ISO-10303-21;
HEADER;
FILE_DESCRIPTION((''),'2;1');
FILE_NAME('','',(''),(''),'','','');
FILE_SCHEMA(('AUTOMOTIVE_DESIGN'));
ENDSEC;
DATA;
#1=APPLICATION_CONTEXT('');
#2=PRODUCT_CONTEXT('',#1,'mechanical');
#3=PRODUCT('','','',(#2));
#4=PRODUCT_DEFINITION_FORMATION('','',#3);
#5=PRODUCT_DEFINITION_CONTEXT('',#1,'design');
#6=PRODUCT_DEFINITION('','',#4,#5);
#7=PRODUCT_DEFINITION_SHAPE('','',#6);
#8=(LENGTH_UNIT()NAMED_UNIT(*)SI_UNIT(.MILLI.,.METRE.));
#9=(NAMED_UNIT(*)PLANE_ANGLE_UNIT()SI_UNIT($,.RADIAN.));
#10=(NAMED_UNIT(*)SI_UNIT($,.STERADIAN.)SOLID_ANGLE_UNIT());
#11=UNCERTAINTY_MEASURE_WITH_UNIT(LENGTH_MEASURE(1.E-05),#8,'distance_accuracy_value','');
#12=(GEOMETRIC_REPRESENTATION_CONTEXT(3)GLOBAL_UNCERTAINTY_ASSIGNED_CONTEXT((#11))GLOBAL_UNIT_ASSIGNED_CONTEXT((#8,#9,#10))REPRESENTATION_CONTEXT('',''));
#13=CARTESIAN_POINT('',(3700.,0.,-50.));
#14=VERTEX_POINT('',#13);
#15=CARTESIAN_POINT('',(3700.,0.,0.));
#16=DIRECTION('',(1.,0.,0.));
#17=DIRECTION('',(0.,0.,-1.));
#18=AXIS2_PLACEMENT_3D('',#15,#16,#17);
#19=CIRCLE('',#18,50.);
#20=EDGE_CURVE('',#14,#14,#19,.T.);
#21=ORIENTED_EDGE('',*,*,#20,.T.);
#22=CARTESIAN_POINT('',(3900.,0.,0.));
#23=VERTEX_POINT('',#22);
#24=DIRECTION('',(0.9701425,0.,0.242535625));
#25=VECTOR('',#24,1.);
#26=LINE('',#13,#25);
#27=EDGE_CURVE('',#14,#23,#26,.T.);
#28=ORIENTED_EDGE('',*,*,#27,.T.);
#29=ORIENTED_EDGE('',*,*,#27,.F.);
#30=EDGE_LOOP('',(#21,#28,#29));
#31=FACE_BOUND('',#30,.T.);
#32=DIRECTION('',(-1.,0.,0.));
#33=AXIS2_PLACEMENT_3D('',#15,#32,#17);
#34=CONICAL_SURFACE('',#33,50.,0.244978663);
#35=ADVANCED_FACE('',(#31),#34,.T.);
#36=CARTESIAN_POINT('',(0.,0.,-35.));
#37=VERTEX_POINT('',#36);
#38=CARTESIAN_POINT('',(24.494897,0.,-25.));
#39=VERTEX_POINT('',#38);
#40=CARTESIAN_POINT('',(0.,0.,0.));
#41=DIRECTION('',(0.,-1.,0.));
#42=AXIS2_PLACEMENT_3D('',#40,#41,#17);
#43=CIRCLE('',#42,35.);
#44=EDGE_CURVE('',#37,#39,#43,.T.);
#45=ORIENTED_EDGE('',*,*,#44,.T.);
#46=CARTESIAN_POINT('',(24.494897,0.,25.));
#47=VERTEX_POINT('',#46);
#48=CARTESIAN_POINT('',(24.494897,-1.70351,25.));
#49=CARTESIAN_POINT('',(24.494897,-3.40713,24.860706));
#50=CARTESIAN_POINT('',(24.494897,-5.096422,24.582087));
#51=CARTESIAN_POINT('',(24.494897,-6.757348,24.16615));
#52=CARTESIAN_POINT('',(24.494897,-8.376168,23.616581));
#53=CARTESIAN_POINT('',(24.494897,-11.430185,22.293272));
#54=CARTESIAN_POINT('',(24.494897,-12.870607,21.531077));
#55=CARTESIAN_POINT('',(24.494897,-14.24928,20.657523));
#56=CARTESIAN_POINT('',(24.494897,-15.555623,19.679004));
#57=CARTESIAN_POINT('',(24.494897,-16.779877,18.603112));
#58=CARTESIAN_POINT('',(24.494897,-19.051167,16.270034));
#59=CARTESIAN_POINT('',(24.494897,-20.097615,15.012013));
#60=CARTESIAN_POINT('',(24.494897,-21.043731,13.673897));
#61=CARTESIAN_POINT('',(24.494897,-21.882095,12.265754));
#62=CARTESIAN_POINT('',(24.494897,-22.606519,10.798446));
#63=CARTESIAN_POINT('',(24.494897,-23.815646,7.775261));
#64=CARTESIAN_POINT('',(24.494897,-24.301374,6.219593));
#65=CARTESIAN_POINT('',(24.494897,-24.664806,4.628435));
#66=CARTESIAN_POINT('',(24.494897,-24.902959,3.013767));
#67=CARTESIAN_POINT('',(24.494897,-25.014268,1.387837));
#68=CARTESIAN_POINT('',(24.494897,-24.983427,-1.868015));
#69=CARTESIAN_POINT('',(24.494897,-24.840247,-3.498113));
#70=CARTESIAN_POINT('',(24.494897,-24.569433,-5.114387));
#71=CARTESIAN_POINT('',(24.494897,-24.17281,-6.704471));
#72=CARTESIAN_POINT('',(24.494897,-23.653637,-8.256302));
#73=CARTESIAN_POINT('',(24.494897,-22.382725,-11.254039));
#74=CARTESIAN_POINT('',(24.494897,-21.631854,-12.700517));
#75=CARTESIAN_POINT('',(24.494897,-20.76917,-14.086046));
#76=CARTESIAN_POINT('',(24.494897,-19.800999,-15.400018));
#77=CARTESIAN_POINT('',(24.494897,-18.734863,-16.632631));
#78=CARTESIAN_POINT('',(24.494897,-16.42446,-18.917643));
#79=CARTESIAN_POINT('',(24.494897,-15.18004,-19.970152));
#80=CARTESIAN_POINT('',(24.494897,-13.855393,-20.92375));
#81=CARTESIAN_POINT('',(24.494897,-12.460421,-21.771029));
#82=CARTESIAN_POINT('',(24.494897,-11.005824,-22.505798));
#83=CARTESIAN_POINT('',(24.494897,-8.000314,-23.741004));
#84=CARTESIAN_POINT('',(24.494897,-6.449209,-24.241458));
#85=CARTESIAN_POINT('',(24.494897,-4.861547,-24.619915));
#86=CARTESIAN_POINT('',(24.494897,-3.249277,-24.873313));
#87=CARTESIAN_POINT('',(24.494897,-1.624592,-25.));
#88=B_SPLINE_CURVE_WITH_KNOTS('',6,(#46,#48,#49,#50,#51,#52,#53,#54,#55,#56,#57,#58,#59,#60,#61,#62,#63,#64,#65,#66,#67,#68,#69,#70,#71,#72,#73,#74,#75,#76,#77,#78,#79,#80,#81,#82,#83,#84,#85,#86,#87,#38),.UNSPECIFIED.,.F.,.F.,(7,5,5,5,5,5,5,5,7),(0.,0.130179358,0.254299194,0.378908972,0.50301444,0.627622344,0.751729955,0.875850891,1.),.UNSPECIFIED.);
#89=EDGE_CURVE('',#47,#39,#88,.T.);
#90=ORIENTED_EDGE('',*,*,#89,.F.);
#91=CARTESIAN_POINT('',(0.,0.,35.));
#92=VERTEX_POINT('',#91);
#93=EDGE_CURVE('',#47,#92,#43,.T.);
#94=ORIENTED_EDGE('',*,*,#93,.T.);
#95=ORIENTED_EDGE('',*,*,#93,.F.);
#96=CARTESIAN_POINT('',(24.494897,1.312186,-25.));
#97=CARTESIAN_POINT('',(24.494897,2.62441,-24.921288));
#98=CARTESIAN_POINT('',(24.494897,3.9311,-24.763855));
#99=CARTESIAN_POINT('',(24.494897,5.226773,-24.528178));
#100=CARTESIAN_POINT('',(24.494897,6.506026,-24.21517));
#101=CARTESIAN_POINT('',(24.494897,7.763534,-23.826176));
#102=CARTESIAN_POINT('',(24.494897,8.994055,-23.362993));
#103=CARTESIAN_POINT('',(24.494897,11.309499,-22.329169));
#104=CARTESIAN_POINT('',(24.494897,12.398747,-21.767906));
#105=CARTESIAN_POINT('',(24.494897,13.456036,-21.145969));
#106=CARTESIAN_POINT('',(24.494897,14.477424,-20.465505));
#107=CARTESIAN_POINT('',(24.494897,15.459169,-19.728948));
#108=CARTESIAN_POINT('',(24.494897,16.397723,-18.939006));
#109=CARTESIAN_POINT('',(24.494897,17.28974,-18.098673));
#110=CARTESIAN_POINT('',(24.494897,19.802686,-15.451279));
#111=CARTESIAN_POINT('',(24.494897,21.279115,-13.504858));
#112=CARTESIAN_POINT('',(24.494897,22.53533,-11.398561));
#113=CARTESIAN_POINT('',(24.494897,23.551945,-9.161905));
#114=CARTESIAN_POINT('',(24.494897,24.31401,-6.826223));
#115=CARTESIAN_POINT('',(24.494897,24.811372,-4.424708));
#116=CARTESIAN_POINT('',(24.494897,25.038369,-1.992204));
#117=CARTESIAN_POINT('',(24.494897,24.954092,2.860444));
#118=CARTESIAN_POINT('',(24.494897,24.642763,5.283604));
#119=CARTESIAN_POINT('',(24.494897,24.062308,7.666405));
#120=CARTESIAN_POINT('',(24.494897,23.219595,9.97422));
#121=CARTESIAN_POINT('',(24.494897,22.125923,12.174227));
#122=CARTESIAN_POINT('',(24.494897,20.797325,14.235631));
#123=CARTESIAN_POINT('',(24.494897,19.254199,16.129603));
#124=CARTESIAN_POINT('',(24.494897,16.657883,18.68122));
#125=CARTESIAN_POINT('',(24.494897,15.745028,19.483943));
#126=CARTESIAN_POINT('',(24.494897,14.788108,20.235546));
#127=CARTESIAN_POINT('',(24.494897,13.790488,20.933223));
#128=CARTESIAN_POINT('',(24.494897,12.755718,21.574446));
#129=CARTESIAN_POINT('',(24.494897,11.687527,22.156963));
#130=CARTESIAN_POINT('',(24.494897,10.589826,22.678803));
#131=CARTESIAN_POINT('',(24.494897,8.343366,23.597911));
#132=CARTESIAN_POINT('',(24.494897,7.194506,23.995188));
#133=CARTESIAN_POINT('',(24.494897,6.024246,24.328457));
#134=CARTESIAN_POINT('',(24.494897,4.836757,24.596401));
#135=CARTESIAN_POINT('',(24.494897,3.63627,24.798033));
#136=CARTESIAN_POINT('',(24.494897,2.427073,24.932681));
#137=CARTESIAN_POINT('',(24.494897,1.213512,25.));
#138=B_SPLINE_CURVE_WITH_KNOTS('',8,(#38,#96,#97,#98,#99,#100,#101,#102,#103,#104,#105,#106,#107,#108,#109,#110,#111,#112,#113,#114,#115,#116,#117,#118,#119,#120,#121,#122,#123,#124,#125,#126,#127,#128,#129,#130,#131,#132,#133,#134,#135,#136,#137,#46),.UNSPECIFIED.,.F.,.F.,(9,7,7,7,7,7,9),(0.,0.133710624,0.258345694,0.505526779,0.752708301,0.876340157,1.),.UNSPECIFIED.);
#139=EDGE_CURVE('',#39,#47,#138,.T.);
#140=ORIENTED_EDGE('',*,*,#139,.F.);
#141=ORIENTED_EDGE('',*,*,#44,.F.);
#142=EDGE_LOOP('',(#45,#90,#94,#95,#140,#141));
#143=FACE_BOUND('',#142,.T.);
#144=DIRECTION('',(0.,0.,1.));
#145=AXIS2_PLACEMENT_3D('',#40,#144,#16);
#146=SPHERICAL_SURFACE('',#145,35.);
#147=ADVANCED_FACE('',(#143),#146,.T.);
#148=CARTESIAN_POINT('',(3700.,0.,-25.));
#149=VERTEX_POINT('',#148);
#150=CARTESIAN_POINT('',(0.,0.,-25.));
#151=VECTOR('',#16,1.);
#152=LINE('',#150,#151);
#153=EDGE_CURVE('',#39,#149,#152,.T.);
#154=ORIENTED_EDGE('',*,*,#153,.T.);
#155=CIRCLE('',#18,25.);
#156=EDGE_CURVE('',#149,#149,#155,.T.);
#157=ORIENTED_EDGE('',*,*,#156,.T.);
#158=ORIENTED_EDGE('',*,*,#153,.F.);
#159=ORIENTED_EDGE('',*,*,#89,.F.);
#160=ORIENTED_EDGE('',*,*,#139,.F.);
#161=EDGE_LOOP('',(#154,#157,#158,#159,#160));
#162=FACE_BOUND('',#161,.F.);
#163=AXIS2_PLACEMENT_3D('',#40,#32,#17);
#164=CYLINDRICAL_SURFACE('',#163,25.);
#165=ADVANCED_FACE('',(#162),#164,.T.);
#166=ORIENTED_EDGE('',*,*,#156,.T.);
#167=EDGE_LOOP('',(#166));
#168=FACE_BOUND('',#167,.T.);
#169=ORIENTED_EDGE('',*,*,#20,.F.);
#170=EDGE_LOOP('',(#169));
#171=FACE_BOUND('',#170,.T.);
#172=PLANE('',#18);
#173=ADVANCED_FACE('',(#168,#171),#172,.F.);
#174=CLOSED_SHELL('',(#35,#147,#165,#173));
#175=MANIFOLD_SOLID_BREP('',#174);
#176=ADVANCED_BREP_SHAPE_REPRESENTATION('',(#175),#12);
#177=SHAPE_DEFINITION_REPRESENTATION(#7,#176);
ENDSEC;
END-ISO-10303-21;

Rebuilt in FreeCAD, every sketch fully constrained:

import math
import FreeCAD as App
import Part
import Sketcher
from FreeCAD import Vector

doc = App.newDocument("Part")
body = doc.addObject("PartDesign::Body", "Body")

# Sketch on XZ plane
sketch1 = body.newObject("Sketcher::SketchObject", "Sketch")
sketch1.AttachmentSupport = (doc.getObject("XZ_Plane"), [""])
sketch1.MapMode = "FlatFace"
sketch1.addGeometry(Part.ArcOfCircle(Part.Circle(Vector(0, 0, 0), Vector(0, 0, 1), 35), math.radians(-90), math.radians(90)), False)
sketch1.addGeometry(Part.LineSegment(Vector(0, 35, 0), Vector(0, -35, 0)), False)
sketch1.addConstraint(Sketcher.Constraint("Coincident", 0, 1, 1, 2))
sketch1.addConstraint(Sketcher.Constraint("Coincident", 1, 1, 0, 2))
sketch1.addConstraint(Sketcher.Constraint("Vertical", 1))
sketch1.addConstraint(Sketcher.Constraint("Coincident", 0, 3, -1, 1))
sketch1.addConstraint(Sketcher.Constraint("PointOnObject", 0, 1, -2))
sketch1.addConstraint(Sketcher.Constraint("Radius", 0, 35.0))
revolution = body.newObject("PartDesign::Revolution", "Revolution")
revolution.Profile = sketch1
revolution.ReferenceAxis = (sketch1, ["V_Axis"])
revolution.Angle = 360
body2 = doc.addObject("PartDesign::Body", "Body001")

# Sketch on XZ plane
sketch2 = body2.newObject("Sketcher::SketchObject", "Sketch001")
sketch2.AttachmentSupport = (doc.getObject("XZ_Plane001"), [""])
sketch2.MapMode = "FlatFace"
sketch2.addGeometry(Part.LineSegment(Vector(3700, 0, 0), Vector(3700, -50, 0)), False)
sketch2.addGeometry(Part.LineSegment(Vector(3700, -50, 0), Vector(3900, 0, 0)), False)
sketch2.addGeometry(Part.LineSegment(Vector(3900, 0, 0), Vector(3700, 0, 0)), False)
sketch2.addConstraint(Sketcher.Constraint("Coincident", 0, 2, 1, 1))
sketch2.addConstraint(Sketcher.Constraint("Coincident", 1, 2, 2, 1))
sketch2.addConstraint(Sketcher.Constraint("Coincident", 2, 2, 0, 1))
sketch2.addConstraint(Sketcher.Constraint("Vertical", 0))
sketch2.addConstraint(Sketcher.Constraint("Horizontal", 2))
sketch2.addConstraint(Sketcher.Constraint("PointOnObject", 1, 2, -1))
sketch2.addConstraint(Sketcher.Constraint("DistanceX", 2, 2, 2, 1, 200.0))
sketch2.addConstraint(Sketcher.Constraint("DistanceY", 0, 2, 0, 1, 50.0))
sketch2.addConstraint(Sketcher.Constraint("DistanceX", -1, 1, 0, 2, 3700.0))
revolution2 = body2.newObject("PartDesign::Revolution", "Revolution001")
revolution2.Profile = sketch2
revolution2.ReferenceAxis = (sketch2, ["H_Axis"])
revolution2.Angle = 360
body3 = doc.addObject("PartDesign::Body", "Body002")

# Sketch on YZ plane
sketch3 = body3.newObject("Sketcher::SketchObject", "Sketch002")
sketch3.AttachmentSupport = (doc.getObject("YZ_Plane002"), [""])
sketch3.MapMode = "FlatFace"
sketch3.addGeometry(Part.Circle(Vector(0, 0, 0), Vector(0, 0, 1), 25), False)
sketch3.addConstraint(Sketcher.Constraint("Coincident", 0, 3, -1, 1))
sketch3.addConstraint(Sketcher.Constraint("Diameter", 0, 50.0))
pad1 = body3.newObject("PartDesign::Pad", "Pad")
pad1.Profile = sketch3
pad1.Length = 3700
doc.recompute()

boolean = body3.newObject("PartDesign::Boolean", "Boolean")
boolean.Type = "Fuse"
boolean.addObjects([body])
doc.recompute()

boolean2 = body3.newObject("PartDesign::Boolean", "Boolean001")
boolean2.Type = "Fuse"
boolean2.addObjects([body2])

doc.recompute()
